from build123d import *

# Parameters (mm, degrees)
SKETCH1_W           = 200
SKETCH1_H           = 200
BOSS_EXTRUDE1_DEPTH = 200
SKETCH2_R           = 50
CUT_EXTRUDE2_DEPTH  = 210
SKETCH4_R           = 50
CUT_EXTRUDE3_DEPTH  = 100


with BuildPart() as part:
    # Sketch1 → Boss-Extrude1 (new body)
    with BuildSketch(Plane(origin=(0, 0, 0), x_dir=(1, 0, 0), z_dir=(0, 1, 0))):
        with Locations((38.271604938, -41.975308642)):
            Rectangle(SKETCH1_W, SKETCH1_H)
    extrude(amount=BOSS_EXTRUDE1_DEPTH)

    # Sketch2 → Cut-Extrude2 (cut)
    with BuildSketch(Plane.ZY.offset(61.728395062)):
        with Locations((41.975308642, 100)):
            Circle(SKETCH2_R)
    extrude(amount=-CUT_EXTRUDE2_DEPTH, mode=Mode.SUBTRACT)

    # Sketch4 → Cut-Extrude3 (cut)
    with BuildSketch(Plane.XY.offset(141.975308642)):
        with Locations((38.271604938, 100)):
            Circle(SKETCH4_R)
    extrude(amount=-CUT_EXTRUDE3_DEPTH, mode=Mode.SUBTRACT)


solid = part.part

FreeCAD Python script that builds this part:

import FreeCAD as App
import Part
import Sketcher
Q = App.Units.Quantity


def add_polygon(sketch, points):
    """Adds a closed chain of lines whose ends are joined by coincident constraints."""
    first, n = sketch.GeometryCount, len(points)
    for a, b in zip(points, points[1:] + points[:1]):
        sketch.addGeometry(Part.LineSegment(App.Vector(*a, 0), App.Vector(*b, 0)), False)
    for i in range(n):
        sketch.addConstraint(Sketcher.Constraint("Coincident", first + i, 2, first + (i + 1) % n, 1))

doc = App.newDocument("Part")
params = doc.addObject("Spreadsheet::Sheet", "Params")
for row, (alias, value) in enumerate([
    ("sketch1_width", "200 mm"),
    ("pad1_length", "200 mm"),
    ("sketch2_diameter", "100 mm"),
    ("pocket1_length", "210 mm"),
    ("sketch3_diameter", "100 mm"),
    ("pocket2_length", "100 mm"),
], start=1):
    params.set(f"A{row}", alias)
    params.set(f"B{row}", "=" + value)
    params.setAlias(f"B{row}", alias)

body = doc.addObject("PartDesign::Body", "Body")

# Sketch on XZ plane
sketch1 = body.newObject("Sketcher::SketchObject", "Sketch")
sketch1.AttachmentSupport = (doc.getObject("XZ_Plane"), [""])
sketch1.MapMode = "FlatFace"
add_polygon(sketch1, [(-62, -58), (-62, 142), (138, 142), (138, -58)])  # lines 0-3
sketch1.addConstraint([
    Sketcher.Constraint("Vertical", 0),
    Sketcher.Constraint("Horizontal", 1),
    Sketcher.Constraint("Vertical", 2),
    Sketcher.Constraint("Horizontal", 3),
    Sketcher.Constraint("Equal", 3, 0),
    Sketcher.Constraint("DistanceX", 1, 1, 1, 2, Q("200 mm")),
    Sketcher.Constraint("DistanceY", -1, 1, 0, 2, Q("141.975309 mm")),
    Sketcher.Constraint("DistanceX", 0, 2, -1, 1, Q("61.728395 mm")),
])
sketch1.setExpression("Constraints[9]", "Params.sketch1_width")
pad1 = body.newObject("PartDesign::Pad", "Pad")
pad1.Profile = sketch1
pad1.setExpression("Length", "Params.pad1_length")
pad1.Reversed = True

# Sketch on YZ plane
sketch2 = body.newObject("Sketcher::SketchObject", "Sketch001")
sketch2.AttachmentSupport = (doc.getObject("YZ_Plane"), [""])
sketch2.MapMode = "FlatFace"
sketch2.AttachmentOffset = App.Placement(App.Vector(0, 0, -61.728395), App.Rotation())
sketch2.addGeometry(Part.Circle(App.Vector(100, 42, 0), App.Vector(0, 0, 1), 50), False)
sketch2.addConstraint([
    Sketcher.Constraint("Diameter", 0, Q("100 mm")),
    Sketcher.Constraint("DistanceX", -1, 1, 0, 3, Q("100 mm")),
    Sketcher.Constraint("DistanceY", -1, 1, 0, 3, Q("41.975309 mm")),
])
sketch2.setExpression("Constraints[0]", "Params.sketch2_diameter")
pocket1 = body.newObject("PartDesign::Pocket", "Pocket")
pocket1.Profile = sketch2
pocket1.setExpression("Length", "Params.pocket1_length")
pocket1.Reversed = True

# Sketch on XY plane
sketch3 = body.newObject("Sketcher::SketchObject", "Sketch002")
sketch3.AttachmentSupport = (doc.getObject("XY_Plane"), [""])
sketch3.MapMode = "FlatFace"
sketch3.AttachmentOffset = App.Placement(App.Vector(0, 0, 141.975309), App.Rotation())
sketch3.addGeometry(Part.Circle(App.Vector(38, 100, 0), App.Vector(0, 0, 1), 50), False)
sketch3.addConstraint([
    Sketcher.Constraint("Diameter", 0, Q("100 mm")),
    Sketcher.Constraint("DistanceY", -1, 1, 0, 3, Q("100 mm")),
    Sketcher.Constraint("DistanceX", -1, 1, 0, 3, Q("38.271605 mm")),
])
sketch3.setExpression("Constraints[0]", "Params.sketch3_diameter")
pocket2 = body.newObject("PartDesign::Pocket", "Pocket001")
pocket2.Profile = sketch3
pocket2.setExpression("Length", "Params.pocket2_length")

doc.recompute()
